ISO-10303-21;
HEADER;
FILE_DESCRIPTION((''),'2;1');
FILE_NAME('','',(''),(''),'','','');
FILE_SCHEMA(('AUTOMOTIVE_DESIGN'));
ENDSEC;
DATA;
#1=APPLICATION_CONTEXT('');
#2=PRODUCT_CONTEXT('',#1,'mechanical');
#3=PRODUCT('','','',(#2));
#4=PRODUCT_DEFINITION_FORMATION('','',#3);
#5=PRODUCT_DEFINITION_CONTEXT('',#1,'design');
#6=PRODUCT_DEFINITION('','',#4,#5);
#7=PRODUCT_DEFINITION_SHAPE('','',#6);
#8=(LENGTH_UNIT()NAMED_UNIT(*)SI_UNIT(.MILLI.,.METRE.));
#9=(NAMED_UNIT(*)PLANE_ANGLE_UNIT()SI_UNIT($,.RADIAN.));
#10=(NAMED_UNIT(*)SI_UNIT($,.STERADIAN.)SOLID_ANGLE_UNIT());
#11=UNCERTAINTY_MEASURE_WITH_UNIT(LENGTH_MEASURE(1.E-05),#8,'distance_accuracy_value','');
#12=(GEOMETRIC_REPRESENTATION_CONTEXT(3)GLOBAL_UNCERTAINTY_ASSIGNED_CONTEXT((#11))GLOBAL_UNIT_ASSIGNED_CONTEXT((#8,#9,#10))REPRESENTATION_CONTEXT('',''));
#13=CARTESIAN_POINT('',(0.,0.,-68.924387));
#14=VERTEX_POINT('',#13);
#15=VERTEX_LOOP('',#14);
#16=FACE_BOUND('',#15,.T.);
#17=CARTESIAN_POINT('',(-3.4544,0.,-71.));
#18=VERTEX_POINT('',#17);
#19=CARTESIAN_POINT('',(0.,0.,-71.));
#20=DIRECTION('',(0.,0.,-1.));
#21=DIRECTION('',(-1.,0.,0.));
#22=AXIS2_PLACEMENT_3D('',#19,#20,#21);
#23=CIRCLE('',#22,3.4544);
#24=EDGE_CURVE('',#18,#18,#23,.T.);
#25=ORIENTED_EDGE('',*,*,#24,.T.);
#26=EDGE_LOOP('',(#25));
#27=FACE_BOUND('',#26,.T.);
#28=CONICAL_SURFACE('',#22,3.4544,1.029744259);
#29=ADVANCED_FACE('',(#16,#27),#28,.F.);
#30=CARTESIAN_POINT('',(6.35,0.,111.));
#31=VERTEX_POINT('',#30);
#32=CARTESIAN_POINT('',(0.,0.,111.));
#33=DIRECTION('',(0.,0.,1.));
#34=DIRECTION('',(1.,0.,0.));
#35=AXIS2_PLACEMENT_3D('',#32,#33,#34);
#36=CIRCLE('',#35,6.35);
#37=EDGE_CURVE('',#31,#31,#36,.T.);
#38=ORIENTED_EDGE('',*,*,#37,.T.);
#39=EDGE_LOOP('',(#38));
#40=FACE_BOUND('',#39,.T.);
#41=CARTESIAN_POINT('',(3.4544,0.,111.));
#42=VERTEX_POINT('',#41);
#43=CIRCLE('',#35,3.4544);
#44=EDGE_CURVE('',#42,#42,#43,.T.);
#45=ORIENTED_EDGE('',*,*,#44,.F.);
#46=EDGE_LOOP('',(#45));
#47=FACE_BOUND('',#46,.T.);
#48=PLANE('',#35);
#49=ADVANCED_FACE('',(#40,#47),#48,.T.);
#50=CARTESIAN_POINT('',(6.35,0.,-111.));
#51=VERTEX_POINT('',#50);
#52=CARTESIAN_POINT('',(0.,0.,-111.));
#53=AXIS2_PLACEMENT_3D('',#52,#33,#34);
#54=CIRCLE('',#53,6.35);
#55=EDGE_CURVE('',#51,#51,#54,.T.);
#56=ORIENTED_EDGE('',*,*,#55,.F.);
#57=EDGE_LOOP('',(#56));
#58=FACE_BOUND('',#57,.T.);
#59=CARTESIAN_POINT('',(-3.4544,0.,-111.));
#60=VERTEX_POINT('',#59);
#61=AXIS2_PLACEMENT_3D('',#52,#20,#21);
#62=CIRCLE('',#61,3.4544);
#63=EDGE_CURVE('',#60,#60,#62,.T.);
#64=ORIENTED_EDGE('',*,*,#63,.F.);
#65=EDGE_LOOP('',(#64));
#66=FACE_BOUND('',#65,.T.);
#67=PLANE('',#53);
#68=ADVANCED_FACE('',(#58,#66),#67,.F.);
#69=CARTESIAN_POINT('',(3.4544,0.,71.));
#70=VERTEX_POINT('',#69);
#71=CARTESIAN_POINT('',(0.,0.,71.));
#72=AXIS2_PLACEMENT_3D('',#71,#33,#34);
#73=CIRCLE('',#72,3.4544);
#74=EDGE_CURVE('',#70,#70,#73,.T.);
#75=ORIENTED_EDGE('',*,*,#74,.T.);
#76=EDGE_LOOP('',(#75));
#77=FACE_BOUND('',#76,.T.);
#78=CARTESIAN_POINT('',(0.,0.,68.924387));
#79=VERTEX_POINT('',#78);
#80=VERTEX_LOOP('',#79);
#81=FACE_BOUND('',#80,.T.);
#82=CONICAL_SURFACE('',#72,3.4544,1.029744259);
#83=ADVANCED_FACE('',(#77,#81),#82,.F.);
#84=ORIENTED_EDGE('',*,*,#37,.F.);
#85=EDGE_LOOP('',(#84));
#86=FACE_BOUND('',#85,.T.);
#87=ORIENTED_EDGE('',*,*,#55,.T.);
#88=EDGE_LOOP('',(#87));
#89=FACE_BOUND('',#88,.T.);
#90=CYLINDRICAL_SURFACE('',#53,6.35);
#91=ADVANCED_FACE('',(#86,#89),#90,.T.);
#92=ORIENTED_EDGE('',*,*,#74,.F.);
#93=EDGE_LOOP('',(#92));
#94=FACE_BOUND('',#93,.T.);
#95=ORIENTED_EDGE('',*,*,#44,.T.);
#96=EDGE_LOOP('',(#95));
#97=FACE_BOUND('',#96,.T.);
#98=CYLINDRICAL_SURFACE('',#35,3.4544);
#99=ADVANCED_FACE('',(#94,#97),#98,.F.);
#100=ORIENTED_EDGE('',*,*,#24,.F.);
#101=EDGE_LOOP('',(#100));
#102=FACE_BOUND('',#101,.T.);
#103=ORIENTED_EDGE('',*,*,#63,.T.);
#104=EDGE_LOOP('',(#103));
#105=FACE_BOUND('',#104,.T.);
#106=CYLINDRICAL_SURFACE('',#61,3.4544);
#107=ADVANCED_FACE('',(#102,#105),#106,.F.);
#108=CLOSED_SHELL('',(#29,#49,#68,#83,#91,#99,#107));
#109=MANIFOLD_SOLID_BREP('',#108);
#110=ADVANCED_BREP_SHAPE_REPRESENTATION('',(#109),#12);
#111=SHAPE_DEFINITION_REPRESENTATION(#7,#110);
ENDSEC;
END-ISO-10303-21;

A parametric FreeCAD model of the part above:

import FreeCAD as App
import Part
import Sketcher

V = App.Vector

doc = App.newDocument("Part")
body = doc.addObject("PartDesign::Body", "Body")

# Sketch on XY plane
sketch1 = doc.addObject("Sketcher::SketchObject", "Sketch")
body.addObject(sketch1)
sketch1.AttachmentSupport = (doc.XY_Plane, [""])
sketch1.MapMode = "FlatFace"
sketch1.addGeometry(Part.Circle(V(0, 0, 0), V(0, 0, 1), 6), False)
sketch1.addConstraint(Sketcher.Constraint("Coincident", 0, 3, -1, 1))
sketch1.addConstraint(Sketcher.Constraint("Diameter", 0, 12.7))
pad1 = doc.addObject("PartDesign::Pad", "Pad")
body.addObject(pad1)
pad1.Profile = sketch1
pad1.Type = "TwoLengths"
pad1.Length = 111
pad1.Length2 = 111

# Sketch on XY plane
sketch2 = doc.addObject("Sketcher::SketchObject", "Sketch001")
body.addObject(sketch2)
sketch2.AttachmentSupport = (doc.XY_Plane, [""])
sketch2.MapMode = "FlatFace"
sketch2.AttachmentOffset = App.Placement(V(0, 0, -111), App.Rotation())
sketch2.addGeometry(Part.Circle(V(0, 0, 0), V(0, 0, 1), 3.5), False)
sketch2.addConstraint(Sketcher.Constraint("Coincident", 0, 3, -1, 1))
sketch2.addConstraint(Sketcher.Constraint("Diameter", 0, 6.9088))
doc.recompute()
hole = doc.addObject("PartDesign::Hole", "Hole")
body.addObject(hole)
hole.Profile = sketch2
hole.ThreadType = "None"
hole.Diameter = 6.9088
hole.DepthType = "Dimension"
hole.Depth = 40
hole.DrillPoint = "Angled"
hole.DrillPointAngle = 118
hole.Reversed = True

# Sketch on XY plane
sketch3 = doc.addObject("Sketcher::SketchObject", "Sketch002")
body.addObject(sketch3)
sketch3.AttachmentSupport = (doc.XY_Plane, [""])
sketch3.MapMode = "FlatFace"
sketch3.AttachmentOffset = App.Placement(V(0, 0, 111), App.Rotation())
sketch3.addGeometry(Part.Circle(V(0, 0, 0), V(0, 0, 1), 3.5), False)
sketch3.addConstraint(Sketcher.Constraint("Coincident", 0, 3, -1, 1))
sketch3.addConstraint(Sketcher.Constraint("Diameter", 0, 6.9088))
doc.recompute()
hole2 = doc.addObject("PartDesign::Hole", "Hole001")
body.addObject(hole2)
hole2.Profile = sketch3
hole2.ThreadType = "None"
hole2.Diameter = 6.9088
hole2.DepthType = "Dimension"
hole2.Depth = 40
hole2.DrillPoint = "Angled"
hole2.DrillPointAngle = 118

doc.recompute()
